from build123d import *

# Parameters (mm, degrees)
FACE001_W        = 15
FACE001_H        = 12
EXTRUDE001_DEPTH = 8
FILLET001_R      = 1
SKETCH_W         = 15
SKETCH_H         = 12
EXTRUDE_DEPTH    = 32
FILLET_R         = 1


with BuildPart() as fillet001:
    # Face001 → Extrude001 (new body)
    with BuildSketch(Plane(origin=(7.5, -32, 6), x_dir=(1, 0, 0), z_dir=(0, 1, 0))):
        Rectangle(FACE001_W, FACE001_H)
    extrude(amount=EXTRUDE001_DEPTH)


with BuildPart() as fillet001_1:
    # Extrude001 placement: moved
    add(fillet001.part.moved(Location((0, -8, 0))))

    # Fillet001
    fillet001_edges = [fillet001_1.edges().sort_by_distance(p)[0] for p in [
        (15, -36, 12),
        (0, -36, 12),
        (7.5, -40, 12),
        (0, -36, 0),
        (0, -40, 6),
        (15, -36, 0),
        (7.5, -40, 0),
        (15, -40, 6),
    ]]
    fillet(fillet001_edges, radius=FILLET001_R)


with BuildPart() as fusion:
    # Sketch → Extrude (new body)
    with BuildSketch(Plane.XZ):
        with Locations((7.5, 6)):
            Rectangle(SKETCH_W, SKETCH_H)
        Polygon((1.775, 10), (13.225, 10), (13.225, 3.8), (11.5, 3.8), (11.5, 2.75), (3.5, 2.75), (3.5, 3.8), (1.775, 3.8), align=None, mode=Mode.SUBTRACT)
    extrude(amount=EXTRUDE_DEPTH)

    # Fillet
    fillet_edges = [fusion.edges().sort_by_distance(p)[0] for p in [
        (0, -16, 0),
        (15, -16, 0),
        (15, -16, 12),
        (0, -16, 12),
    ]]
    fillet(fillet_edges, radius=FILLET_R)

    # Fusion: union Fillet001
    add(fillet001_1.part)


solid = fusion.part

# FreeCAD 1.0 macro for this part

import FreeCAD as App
import Part
import Sketcher


def edges_at(feature, points):
    """Names of the edges that pass closest to the given points."""
    edges = feature.Shape.Edges
    near = lambda p: min(range(len(edges)), key=lambda i: edges[i].distToShape(Part.Vertex(*p))[0])
    return sorted({f"Edge{near(p) + 1}" for p in points})


def add_polygon(sketch, points):
    """Adds a closed chain of lines whose ends are joined by coincident constraints."""
    first, n = sketch.GeometryCount, len(points)
    for a, b in zip(points, points[1:] + points[:1]):
        sketch.addGeometry(Part.LineSegment(App.Vector(*a, 0), App.Vector(*b, 0)), False)
    for i in range(n):
        sketch.addConstraint(Sketcher.Constraint("Coincident", first + i, 2, first + (i + 1) % n, 1))

doc = App.newDocument("Part")
body = doc.addObject("PartDesign::Body", "Body")

# Sketch on XZ plane
sketch1 = doc.addObject("Sketcher::SketchObject", "Sketch")
body.addObject(sketch1)
sketch1.AttachmentSupport = (doc.XZ_Plane, [""])
sketch1.MapMode = "FlatFace"
sketch1.AttachmentOffset = App.Placement(App.Vector(0, 0, 32), App.Rotation())
add_polygon(sketch1, [(0, 0), (0, 12), (15, 12), (15, 0)])  # lines 0-3
sketch1.addConstraint(Sketcher.Constraint("Vertical", 0))
sketch1.addConstraint(Sketcher.Constraint("Horizontal", 1))
sketch1.addConstraint(Sketcher.Constraint("Vertical", 2))
sketch1.addConstraint(Sketcher.Constraint("Horizontal", 3))
sketch1.addConstraint(Sketcher.Constraint("Coincident", 3, 2, -1, 1))
sketch1.addConstraint(Sketcher.Constraint("DistanceX", 1, 1, 1, 2, 15.0))
sketch1.addConstraint(Sketcher.Constraint("DistanceY", 0, 1, 0, 2, 12.0))
pad1 = doc.addObject("PartDesign::Pad", "Pad")
body.addObject(pad1)
pad1.Profile = sketch1
pad1.Length = 8
pad1.Reversed = True
body2 = doc.addObject("PartDesign::Body", "Body001")
doc.recompute()

body.Placement = App.Placement(App.Vector(0, -8, 0), App.Rotation(App.Vector(0, 0, 1), 0))
boolean = doc.addObject("PartDesign::Boolean", "Boolean")
body2.addObject(boolean)
boolean.Type = "Fuse"
boolean.addObjects([body])
doc.recompute()

fillet = doc.addObject("PartDesign::Fillet", "Fillet")
body2.addObject(fillet)
fillet.Base = (boolean, edges_at(boolean, [
    (15, -36, 12),
    (0, -36, 12),
    (7.5, -40, 12),
    (0, -36, 0),
    (0, -40, 6),
    (15, -36, 0),
    (7.5, -40, 0),
    (15, -40, 6),
]))
fillet.Radius = 1
body3 = doc.addObject("PartDesign::Body", "Body002")

# Sketch on XZ plane
sketch2 = doc.addObject("Sketcher::SketchObject", "Sketch001")
body3.addObject(sketch2)
sketch2.AttachmentSupport = (doc.getObject("XZ_Plane002"), [""])
sketch2.MapMode = "FlatFace"
add_polygon(sketch2, [(0, 12), (0, 0), (15, 0), (15, 12)])  # lines 0-3
add_polygon(sketch2, [(1.775, 3.8), (1.775, 10), (13.225, 10), (13.225, 3.8), (11.5, 3.8), (11.5, 2.75), (3.5, 2.75), (3.5, 3.8)])  # lines 4-11
sketch2.addConstraint(Sketcher.Constraint("Vertical", 0))
sketch2.addConstraint(Sketcher.Constraint("Horizontal", 1))
sketch2.addConstraint(Sketcher.Constraint("Vertical", 2))
sketch2.addConstraint(Sketcher.Constraint("Horizontal", 3))
sketch2.addConstraint(Sketcher.Constraint("Vertical", 4))
sketch2.addConstraint(Sketcher.Constraint("Horizontal", 5))
sketch2.addConstraint(Sketcher.Constraint("Vertical", 6))
sketch2.addConstraint(Sketcher.Constraint("Horizontal", 7))
sketch2.addConstraint(Sketcher.Constraint("Vertical", 8))
sketch2.addConstraint(Sketcher.Constraint("Horizontal", 9))
sketch2.addConstraint(Sketcher.Constraint("Vertical", 10))
sketch2.addConstraint(Sketcher.Constraint("Horizontal", 11))
sketch2.addConstraint(Sketcher.Constraint("Coincident", 0, 2, -1, 1))
sketch2.addConstraint(Sketcher.Constraint("Horizontal", 7, 2, 10, 2))
sketch2.addConstraint(Sketcher.Constraint("Equal", 7, 11))
sketch2.addConstraint(Sketcher.Constraint("DistanceX", 1, 1, 1, 2, 15.0))
sketch2.addConstraint(Sketcher.Constraint("DistanceX", 9, 2, 9, 1, 8.0))
sketch2.addConstraint(Sketcher.Constraint("DistanceY", 0, 2, 0, 1, 12.0))
sketch2.addConstraint(Sketcher.Constraint("DistanceY", 4, 1, 4, 2, 6.2))
sketch2.addConstraint(Sketcher.Constraint("DistanceY", -1, 1, 4, 2, 10.0))
sketch2.addConstraint(Sketcher.Constraint("DistanceX", 5, 1, 5, 2, 11.45))
sketch2.addConstraint(Sketcher.Constraint("DistanceY", 8, 2, 8, 1, 1.05))
sketch2.addConstraint(Sketcher.Constraint("DistanceX", -1, 1, 7, 2, 11.5))
pad2 = doc.addObject("PartDesign::Pad", "Pad001")
body3.addObject(pad2)
pad2.Profile = sketch2
pad2.Length = 32
doc.recompute()

fillet2 = doc.addObject("PartDesign::Fillet", "Fillet001")
body3.addObject(fillet2)
fillet2.Base = (pad2, edges_at(pad2, [
    (0, -16, 0),
    (15, -16, 0),
    (15, -16, 12),
    (0, -16, 12),
]))
fillet2.Radius = 1
doc.recompute()

boolean2 = doc.addObject("PartDesign::Boolean", "Boolean001")
body3.addObject(boolean2)
boolean2.Type = "Fuse"
boolean2.addObjects([body2])

doc.recompute()
